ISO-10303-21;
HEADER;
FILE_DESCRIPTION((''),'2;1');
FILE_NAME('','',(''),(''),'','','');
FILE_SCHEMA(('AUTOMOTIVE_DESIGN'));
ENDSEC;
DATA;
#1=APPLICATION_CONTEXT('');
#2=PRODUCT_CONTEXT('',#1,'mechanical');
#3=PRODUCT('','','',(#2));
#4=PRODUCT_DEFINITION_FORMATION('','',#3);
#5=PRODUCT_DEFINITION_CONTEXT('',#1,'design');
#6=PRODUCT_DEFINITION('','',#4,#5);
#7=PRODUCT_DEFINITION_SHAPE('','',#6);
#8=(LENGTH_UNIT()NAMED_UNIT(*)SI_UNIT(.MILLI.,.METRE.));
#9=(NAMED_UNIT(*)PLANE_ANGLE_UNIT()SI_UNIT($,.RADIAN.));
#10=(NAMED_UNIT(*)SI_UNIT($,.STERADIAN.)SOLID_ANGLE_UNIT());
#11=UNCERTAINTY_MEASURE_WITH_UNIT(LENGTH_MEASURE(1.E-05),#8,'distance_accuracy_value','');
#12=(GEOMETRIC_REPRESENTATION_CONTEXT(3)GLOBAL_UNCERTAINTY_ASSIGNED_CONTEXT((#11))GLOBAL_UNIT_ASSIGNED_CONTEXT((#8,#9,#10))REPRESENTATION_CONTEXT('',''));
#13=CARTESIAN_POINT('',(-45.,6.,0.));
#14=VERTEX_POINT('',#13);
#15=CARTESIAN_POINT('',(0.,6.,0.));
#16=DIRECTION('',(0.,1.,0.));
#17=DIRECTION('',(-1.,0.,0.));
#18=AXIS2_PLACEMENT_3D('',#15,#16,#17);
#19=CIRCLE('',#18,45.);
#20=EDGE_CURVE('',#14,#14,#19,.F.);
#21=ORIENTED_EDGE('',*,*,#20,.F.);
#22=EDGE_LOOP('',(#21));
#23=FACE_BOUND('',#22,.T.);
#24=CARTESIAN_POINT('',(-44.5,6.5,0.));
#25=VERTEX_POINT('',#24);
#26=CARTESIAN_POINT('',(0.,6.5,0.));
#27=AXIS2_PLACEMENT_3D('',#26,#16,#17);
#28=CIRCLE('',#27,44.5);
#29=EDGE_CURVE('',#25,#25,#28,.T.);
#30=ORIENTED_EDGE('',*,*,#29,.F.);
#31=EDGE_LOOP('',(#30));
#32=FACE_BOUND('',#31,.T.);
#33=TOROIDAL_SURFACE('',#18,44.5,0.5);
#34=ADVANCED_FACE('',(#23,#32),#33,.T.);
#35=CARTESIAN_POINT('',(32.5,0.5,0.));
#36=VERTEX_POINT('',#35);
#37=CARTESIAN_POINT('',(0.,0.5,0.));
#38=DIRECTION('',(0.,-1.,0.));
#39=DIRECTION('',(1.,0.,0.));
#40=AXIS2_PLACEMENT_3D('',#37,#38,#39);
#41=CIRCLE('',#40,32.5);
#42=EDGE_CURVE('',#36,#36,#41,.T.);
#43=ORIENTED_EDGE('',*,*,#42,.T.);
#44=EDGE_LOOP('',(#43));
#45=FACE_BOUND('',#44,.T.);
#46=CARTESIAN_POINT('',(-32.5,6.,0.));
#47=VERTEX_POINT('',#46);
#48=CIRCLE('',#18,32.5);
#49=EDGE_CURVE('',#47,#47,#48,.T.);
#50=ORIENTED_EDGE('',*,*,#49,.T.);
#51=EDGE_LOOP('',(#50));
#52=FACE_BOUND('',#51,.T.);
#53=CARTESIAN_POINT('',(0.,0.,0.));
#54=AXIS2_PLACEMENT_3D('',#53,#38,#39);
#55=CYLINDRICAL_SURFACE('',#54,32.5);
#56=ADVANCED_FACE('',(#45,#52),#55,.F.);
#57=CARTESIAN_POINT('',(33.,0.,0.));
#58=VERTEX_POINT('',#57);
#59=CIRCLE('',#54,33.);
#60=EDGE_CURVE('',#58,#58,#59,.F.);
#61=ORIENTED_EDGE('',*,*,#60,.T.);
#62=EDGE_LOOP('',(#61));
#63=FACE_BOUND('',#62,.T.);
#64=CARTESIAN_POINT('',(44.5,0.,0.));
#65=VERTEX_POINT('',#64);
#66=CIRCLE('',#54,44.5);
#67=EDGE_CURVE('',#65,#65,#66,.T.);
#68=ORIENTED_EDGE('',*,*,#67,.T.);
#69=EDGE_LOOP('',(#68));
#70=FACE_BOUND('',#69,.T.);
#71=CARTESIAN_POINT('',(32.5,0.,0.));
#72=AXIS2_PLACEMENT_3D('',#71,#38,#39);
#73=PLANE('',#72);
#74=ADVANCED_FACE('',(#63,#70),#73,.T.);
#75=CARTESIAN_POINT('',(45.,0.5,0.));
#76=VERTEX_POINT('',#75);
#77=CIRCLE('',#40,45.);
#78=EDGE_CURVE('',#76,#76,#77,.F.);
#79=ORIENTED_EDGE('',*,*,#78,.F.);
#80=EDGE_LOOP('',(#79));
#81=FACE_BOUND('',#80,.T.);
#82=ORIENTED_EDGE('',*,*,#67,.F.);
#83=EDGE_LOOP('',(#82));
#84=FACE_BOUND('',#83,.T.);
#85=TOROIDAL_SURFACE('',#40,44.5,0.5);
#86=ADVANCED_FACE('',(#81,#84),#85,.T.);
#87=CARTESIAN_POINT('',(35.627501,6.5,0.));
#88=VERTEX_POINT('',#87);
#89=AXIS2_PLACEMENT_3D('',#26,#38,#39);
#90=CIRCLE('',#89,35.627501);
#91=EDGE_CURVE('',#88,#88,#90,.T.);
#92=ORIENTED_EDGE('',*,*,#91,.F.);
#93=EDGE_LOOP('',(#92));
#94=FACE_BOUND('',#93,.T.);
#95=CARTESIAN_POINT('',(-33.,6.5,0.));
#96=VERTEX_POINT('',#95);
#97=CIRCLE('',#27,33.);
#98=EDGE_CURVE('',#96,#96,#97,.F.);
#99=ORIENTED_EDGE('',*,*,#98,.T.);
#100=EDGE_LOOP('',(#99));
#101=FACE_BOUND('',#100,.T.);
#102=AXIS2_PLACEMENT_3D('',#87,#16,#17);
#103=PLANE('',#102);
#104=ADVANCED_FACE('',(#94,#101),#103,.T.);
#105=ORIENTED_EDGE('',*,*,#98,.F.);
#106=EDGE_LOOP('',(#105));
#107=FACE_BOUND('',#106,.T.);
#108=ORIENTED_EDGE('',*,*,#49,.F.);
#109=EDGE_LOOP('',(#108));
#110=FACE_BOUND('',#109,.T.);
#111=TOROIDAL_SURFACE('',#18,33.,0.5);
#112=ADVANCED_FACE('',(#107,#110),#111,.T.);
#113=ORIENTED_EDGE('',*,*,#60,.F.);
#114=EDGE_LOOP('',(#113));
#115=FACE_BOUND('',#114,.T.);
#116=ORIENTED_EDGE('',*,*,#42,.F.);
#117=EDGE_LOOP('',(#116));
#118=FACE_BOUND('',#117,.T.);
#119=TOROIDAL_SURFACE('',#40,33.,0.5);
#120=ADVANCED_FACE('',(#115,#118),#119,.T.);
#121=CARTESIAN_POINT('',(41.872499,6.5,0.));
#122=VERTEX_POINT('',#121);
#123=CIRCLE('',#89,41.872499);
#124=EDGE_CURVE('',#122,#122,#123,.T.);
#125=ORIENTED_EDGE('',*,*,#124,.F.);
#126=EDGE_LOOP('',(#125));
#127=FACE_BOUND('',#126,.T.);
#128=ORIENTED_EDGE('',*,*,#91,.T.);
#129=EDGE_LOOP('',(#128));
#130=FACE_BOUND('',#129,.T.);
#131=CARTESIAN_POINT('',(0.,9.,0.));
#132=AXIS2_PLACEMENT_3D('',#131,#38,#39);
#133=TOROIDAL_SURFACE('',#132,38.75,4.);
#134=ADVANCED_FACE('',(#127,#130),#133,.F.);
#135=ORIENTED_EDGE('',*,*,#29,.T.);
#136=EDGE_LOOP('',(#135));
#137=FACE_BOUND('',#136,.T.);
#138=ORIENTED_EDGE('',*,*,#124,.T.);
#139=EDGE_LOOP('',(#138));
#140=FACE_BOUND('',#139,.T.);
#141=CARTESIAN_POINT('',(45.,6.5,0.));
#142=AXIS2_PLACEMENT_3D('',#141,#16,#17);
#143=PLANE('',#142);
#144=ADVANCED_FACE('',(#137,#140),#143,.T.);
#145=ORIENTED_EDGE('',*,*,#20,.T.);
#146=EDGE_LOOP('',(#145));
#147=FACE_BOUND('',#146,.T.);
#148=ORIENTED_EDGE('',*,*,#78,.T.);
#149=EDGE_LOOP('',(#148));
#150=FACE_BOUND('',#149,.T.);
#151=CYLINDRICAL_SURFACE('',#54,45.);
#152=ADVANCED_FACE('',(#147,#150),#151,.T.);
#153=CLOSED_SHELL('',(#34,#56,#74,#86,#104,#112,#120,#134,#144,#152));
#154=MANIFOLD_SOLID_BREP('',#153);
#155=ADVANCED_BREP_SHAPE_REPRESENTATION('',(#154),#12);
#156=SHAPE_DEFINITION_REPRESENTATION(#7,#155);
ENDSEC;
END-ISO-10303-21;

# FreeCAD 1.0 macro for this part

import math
import FreeCAD as App
import Part
import Sketcher
Q = App.Units.Quantity


def edges_at(feature, points):
    """Names of the edges that pass closest to the given points."""
    edges = feature.Shape.Edges
    near = lambda p: min(range(len(edges)), key=lambda i: edges[i].distToShape(Part.Vertex(*p))[0])
    return sorted({f"Edge{near(p) + 1}" for p in points})

doc = App.newDocument("Part")
body = doc.addObject("PartDesign::Body", "Body")

# Sketch on XY plane
sketch1 = doc.addObject("Sketcher::SketchObject", "Sketch")
body.addObject(sketch1)
sketch1.AttachmentSupport = (doc.XY_Plane, [""])
sketch1.MapMode = "FlatFace"
sketch1.addGeometry(Part.LineSegment(App.Vector(32.5, 0, 0), App.Vector(45, 0, 0)), False)
sketch1.addGeometry(Part.LineSegment(App.Vector(45, 0, 0), App.Vector(45, 6.5, 0)), False)
sketch1.addGeometry(Part.LineSegment(App.Vector(45, 6.5, 0), App.Vector(41.9, 6.5, 0)), False)
sketch1.addGeometry(Part.ArcOfCircle(Part.Circle(App.Vector(38.8, 9, 0), App.Vector(0, 0, 1), 4), math.radians(-141), math.radians(-39)), False)
sketch1.addGeometry(Part.LineSegment(App.Vector(35.6, 6.5, 0), App.Vector(32.5, 6.5, 0)), False)
sketch1.addGeometry(Part.LineSegment(App.Vector(32.5, 6.5, 0), App.Vector(32.5, 0, 0)), False)
sketch1.addConstraint(Sketcher.Constraint("Coincident", 0, 2, 1, 1))
sketch1.addConstraint(Sketcher.Constraint("Coincident", 1, 2, 2, 1))
sketch1.addConstraint(Sketcher.Constraint("Coincident", 2, 2, 3, 2))
sketch1.addConstraint(Sketcher.Constraint("Coincident", 3, 1, 4, 1))
sketch1.addConstraint(Sketcher.Constraint("Coincident", 4, 2, 5, 1))
sketch1.addConstraint(Sketcher.Constraint("Coincident", 5, 2, 0, 1))
sketch1.addConstraint(Sketcher.Constraint("Horizontal", 0))
sketch1.addConstraint(Sketcher.Constraint("Vertical", 1))
sketch1.addConstraint(Sketcher.Constraint("Horizontal", 2))
sketch1.addConstraint(Sketcher.Constraint("Horizontal", 4))
sketch1.addConstraint(Sketcher.Constraint("Vertical", 5))
sketch1.addConstraint(Sketcher.Constraint("PointOnObject", 0, 2, -1))
sketch1.addConstraint(Sketcher.Constraint("Horizontal", 2, 2, 3, 1))
sketch1.addConstraint(Sketcher.Constraint("Equal", 2, 4))
sketch1.addConstraint(Sketcher.Constraint("Radius", 3, Q("4 mm")))
sketch1.addConstraint(Sketcher.Constraint("DistanceX", 0, 1, 0, 2, Q("12.5 mm")))
sketch1.addConstraint(Sketcher.Constraint("DistanceY", 1, 1, 1, 2, Q("6.5 mm")))
sketch1.addConstraint(Sketcher.Constraint("DistanceY", -1, 1, 3, 3, Q("9 mm")))
sketch1.addConstraint(Sketcher.Constraint("DistanceX", -1, 1, 0, 2, Q("45 mm")))
revolution = doc.addObject("PartDesign::Revolution", "Revolution")
body.addObject(revolution)
revolution.Profile = sketch1
revolution.ReferenceAxis = (sketch1, ["V_Axis"])
revolution.Angle = 360
doc.recompute()

fillet = doc.addObject("PartDesign::Fillet", "Fillet")
body.addObject(fillet)
fillet.Base = (revolution, edges_at(revolution, [
    (-32.5, 6.5, 0),
    (-45, 6.5, 0),
    (-45, 0, 0),
    (-32.5, 0, 0),
]))
fillet.Radius = 0.5

doc.recompute()
